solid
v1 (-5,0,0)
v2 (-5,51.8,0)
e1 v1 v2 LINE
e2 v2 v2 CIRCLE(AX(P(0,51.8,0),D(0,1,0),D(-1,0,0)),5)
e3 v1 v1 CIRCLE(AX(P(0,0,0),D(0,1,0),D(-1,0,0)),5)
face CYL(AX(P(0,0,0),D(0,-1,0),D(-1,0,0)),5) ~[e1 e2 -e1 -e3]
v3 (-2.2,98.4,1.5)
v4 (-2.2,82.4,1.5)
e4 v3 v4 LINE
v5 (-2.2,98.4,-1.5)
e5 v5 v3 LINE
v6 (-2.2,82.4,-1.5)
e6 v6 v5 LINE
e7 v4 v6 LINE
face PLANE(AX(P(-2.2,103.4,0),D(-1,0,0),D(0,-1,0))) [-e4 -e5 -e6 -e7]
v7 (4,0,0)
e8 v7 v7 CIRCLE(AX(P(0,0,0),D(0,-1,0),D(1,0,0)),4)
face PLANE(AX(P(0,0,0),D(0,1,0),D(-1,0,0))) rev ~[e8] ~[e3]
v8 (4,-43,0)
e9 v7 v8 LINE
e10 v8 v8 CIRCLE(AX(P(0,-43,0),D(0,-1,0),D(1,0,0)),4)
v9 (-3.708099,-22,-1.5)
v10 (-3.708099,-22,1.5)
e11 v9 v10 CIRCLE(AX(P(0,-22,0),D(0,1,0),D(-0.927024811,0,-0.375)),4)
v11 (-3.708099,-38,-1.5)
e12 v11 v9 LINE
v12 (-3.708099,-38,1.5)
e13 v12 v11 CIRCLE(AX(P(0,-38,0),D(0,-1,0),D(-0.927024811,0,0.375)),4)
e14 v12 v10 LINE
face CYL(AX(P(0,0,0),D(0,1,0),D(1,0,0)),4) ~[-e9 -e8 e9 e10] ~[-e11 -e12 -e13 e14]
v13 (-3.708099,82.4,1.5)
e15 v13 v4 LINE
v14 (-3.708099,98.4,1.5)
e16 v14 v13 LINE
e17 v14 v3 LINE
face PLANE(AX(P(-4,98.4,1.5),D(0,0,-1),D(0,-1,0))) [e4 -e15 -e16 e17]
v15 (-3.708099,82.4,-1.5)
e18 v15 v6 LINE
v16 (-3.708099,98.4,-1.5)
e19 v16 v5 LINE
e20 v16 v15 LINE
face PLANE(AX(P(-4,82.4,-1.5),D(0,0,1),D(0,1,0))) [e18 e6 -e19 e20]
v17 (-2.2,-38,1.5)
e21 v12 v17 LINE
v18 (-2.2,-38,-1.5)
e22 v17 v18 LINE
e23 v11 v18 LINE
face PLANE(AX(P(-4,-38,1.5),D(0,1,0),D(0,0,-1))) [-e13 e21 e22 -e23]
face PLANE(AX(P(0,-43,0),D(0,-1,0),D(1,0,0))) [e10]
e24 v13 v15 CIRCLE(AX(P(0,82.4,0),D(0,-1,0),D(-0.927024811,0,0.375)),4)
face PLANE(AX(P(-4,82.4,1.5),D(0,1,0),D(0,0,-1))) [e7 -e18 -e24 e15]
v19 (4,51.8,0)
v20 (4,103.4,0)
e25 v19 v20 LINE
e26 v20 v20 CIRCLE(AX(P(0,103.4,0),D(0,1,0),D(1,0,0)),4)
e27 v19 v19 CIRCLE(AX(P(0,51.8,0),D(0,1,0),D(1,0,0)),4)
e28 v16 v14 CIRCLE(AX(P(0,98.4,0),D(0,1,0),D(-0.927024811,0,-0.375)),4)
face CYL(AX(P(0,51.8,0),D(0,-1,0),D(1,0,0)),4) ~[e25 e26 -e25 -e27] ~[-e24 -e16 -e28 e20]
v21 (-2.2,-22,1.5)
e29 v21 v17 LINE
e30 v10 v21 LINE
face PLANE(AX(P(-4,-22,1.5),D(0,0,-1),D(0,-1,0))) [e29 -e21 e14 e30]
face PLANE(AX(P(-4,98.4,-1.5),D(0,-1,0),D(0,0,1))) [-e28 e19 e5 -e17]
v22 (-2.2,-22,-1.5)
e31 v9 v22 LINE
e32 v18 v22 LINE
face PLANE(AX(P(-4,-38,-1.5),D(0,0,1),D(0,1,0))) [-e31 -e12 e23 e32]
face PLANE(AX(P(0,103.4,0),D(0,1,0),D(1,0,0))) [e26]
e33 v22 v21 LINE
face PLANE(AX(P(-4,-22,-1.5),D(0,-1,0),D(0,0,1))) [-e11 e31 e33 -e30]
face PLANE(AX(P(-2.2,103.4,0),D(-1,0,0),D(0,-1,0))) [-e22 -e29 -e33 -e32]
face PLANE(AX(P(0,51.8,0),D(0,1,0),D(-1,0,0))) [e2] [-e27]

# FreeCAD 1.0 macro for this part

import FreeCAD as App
import Part
import Sketcher

V = App.Vector


def add_polygon(sketch, points):
    """Adds a closed chain of lines whose ends are joined by coincident constraints."""
    first, n = sketch.GeometryCount, len(points)
    for a, b in zip(points, points[1:] + points[:1]):
        sketch.addGeometry(Part.LineSegment(App.Vector(*a, 0), App.Vector(*b, 0)), False)
    for i in range(n):
        sketch.addConstraint(Sketcher.Constraint("Coincident", first + i, 2, first + (i + 1) % n, 1))

doc = App.newDocument("Part")
body = doc.addObject("PartDesign::Body", "Body")

# Sketch on XZ plane
sketch1 = body.newObject("Sketcher::SketchObject", "Sketch")
sketch1.AttachmentSupport = (doc.getObject("XZ_Plane"), [""])
sketch1.MapMode = "FlatFace"
sketch1.addGeometry(Part.Circle(V(0, 0, 0), V(0, 0, 1), 5), False)
sketch1.addConstraint([
    Sketcher.Constraint("Coincident", 0, 3, -1, 1),
    Sketcher.Constraint("Diameter", 0, 10.0),
])
pad1 = body.newObject("PartDesign::Pad", "Pad")
pad1.Profile = sketch1
pad1.Length = 51.8
pad1.Reversed = True

# Sketch on XZ plane
sketch2 = body.newObject("Sketcher::SketchObject", "Sketch001")
sketch2.AttachmentSupport = (doc.getObject("XZ_Plane"), [""])
sketch2.MapMode = "FlatFace"
sketch2.AttachmentOffset = App.Placement(V(0, 0, -51.8), App.Rotation())
sketch2.addGeometry(Part.Circle(V(0, 0, 0), V(0, 0, 1), 4), False)
sketch2.addConstraint([
    Sketcher.Constraint("Coincident", 0, 3, -1, 1),
    Sketcher.Constraint("Diameter", 0, 8.0),
])
pad2 = body.newObject("PartDesign::Pad", "Pad001")
pad2.Profile = sketch2
pad2.Length = 51.6
pad2.Reversed = True

# Sketch on XZ plane
sketch3 = body.newObject("Sketcher::SketchObject", "Sketch002")
sketch3.AttachmentSupport = (doc.getObject("XZ_Plane"), [""])
sketch3.MapMode = "FlatFace"
sketch3.addGeometry(Part.Circle(V(0, 0, 0), V(0, 0, 1), 4), False)
sketch3.addConstraint([
    Sketcher.Constraint("Coincident", 0, 3, -1, 1),
    Sketcher.Constraint("Diameter", 0, 8.0),
])
pad3 = body.newObject("PartDesign::Pad", "Pad002")
pad3.Profile = sketch3
pad3.Length = 43

# Sketch on YZ plane
sketch4 = body.newObject("Sketcher::SketchObject", "Sketch003")
sketch4.AttachmentSupport = (doc.getObject("YZ_Plane"), [""])
sketch4.MapMode = "FlatFace"
sketch4.AttachmentOffset = App.Placement(V(0, 0, -4), App.Rotation())
add_polygon(sketch4, [(82.4, 1.5), (98.4, 1.5), (98.4, -1.5), (82.4, -1.5)])  # lines 0-3
sketch4.addConstraint([
    Sketcher.Constraint("Horizontal", 0),
    Sketcher.Constraint("Vertical", 1),
    Sketcher.Constraint("Horizontal", 2),
    Sketcher.Constraint("Vertical", 3),
    Sketcher.Constraint("DistanceX", 0, 1, 0, 2, 16.0),
    Sketcher.Constraint("DistanceY", 1, 2, 1, 1, 3.0),
    Sketcher.Constraint("DistanceX", -1, 1, 0, 2, 98.4),
    Sketcher.Constraint("DistanceY", -1, 1, 0, 2, 1.5),
])
pocket1 = body.newObject("PartDesign::Pocket", "Pocket")
pocket1.Profile = sketch4
pocket1.Length = 1.8
pocket1.Reversed = True

# Sketch on YZ plane
sketch5 = body.newObject("Sketcher::SketchObject", "Sketch004")
sketch5.AttachmentSupport = (doc.getObject("YZ_Plane"), [""])
sketch5.MapMode = "FlatFace"
sketch5.AttachmentOffset = App.Placement(V(0, 0, -4), App.Rotation())
add_polygon(sketch5, [(-38, 1.5), (-22, 1.5), (-22, -1.5), (-38, -1.5)])  # lines 0-3
sketch5.addConstraint([
    Sketcher.Constraint("Horizontal", 0),
    Sketcher.Constraint("Vertical", 1),
    Sketcher.Constraint("Horizontal", 2),
    Sketcher.Constraint("Vertical", 3),
    Sketcher.Constraint("DistanceX", 0, 1, 0, 2, 16.0),
    Sketcher.Constraint("DistanceY", 1, 2, 1, 1, 3.0),
    Sketcher.Constraint("DistanceX", 0, 2, -1, 1, 22.0),
    Sketcher.Constraint("DistanceY", -1, 1, 0, 2, 1.5),
])
pocket2 = body.newObject("PartDesign::Pocket", "Pocket001")
pocket2.Profile = sketch5
pocket2.Length = 1.8
pocket2.Reversed = True

doc.recompute()
